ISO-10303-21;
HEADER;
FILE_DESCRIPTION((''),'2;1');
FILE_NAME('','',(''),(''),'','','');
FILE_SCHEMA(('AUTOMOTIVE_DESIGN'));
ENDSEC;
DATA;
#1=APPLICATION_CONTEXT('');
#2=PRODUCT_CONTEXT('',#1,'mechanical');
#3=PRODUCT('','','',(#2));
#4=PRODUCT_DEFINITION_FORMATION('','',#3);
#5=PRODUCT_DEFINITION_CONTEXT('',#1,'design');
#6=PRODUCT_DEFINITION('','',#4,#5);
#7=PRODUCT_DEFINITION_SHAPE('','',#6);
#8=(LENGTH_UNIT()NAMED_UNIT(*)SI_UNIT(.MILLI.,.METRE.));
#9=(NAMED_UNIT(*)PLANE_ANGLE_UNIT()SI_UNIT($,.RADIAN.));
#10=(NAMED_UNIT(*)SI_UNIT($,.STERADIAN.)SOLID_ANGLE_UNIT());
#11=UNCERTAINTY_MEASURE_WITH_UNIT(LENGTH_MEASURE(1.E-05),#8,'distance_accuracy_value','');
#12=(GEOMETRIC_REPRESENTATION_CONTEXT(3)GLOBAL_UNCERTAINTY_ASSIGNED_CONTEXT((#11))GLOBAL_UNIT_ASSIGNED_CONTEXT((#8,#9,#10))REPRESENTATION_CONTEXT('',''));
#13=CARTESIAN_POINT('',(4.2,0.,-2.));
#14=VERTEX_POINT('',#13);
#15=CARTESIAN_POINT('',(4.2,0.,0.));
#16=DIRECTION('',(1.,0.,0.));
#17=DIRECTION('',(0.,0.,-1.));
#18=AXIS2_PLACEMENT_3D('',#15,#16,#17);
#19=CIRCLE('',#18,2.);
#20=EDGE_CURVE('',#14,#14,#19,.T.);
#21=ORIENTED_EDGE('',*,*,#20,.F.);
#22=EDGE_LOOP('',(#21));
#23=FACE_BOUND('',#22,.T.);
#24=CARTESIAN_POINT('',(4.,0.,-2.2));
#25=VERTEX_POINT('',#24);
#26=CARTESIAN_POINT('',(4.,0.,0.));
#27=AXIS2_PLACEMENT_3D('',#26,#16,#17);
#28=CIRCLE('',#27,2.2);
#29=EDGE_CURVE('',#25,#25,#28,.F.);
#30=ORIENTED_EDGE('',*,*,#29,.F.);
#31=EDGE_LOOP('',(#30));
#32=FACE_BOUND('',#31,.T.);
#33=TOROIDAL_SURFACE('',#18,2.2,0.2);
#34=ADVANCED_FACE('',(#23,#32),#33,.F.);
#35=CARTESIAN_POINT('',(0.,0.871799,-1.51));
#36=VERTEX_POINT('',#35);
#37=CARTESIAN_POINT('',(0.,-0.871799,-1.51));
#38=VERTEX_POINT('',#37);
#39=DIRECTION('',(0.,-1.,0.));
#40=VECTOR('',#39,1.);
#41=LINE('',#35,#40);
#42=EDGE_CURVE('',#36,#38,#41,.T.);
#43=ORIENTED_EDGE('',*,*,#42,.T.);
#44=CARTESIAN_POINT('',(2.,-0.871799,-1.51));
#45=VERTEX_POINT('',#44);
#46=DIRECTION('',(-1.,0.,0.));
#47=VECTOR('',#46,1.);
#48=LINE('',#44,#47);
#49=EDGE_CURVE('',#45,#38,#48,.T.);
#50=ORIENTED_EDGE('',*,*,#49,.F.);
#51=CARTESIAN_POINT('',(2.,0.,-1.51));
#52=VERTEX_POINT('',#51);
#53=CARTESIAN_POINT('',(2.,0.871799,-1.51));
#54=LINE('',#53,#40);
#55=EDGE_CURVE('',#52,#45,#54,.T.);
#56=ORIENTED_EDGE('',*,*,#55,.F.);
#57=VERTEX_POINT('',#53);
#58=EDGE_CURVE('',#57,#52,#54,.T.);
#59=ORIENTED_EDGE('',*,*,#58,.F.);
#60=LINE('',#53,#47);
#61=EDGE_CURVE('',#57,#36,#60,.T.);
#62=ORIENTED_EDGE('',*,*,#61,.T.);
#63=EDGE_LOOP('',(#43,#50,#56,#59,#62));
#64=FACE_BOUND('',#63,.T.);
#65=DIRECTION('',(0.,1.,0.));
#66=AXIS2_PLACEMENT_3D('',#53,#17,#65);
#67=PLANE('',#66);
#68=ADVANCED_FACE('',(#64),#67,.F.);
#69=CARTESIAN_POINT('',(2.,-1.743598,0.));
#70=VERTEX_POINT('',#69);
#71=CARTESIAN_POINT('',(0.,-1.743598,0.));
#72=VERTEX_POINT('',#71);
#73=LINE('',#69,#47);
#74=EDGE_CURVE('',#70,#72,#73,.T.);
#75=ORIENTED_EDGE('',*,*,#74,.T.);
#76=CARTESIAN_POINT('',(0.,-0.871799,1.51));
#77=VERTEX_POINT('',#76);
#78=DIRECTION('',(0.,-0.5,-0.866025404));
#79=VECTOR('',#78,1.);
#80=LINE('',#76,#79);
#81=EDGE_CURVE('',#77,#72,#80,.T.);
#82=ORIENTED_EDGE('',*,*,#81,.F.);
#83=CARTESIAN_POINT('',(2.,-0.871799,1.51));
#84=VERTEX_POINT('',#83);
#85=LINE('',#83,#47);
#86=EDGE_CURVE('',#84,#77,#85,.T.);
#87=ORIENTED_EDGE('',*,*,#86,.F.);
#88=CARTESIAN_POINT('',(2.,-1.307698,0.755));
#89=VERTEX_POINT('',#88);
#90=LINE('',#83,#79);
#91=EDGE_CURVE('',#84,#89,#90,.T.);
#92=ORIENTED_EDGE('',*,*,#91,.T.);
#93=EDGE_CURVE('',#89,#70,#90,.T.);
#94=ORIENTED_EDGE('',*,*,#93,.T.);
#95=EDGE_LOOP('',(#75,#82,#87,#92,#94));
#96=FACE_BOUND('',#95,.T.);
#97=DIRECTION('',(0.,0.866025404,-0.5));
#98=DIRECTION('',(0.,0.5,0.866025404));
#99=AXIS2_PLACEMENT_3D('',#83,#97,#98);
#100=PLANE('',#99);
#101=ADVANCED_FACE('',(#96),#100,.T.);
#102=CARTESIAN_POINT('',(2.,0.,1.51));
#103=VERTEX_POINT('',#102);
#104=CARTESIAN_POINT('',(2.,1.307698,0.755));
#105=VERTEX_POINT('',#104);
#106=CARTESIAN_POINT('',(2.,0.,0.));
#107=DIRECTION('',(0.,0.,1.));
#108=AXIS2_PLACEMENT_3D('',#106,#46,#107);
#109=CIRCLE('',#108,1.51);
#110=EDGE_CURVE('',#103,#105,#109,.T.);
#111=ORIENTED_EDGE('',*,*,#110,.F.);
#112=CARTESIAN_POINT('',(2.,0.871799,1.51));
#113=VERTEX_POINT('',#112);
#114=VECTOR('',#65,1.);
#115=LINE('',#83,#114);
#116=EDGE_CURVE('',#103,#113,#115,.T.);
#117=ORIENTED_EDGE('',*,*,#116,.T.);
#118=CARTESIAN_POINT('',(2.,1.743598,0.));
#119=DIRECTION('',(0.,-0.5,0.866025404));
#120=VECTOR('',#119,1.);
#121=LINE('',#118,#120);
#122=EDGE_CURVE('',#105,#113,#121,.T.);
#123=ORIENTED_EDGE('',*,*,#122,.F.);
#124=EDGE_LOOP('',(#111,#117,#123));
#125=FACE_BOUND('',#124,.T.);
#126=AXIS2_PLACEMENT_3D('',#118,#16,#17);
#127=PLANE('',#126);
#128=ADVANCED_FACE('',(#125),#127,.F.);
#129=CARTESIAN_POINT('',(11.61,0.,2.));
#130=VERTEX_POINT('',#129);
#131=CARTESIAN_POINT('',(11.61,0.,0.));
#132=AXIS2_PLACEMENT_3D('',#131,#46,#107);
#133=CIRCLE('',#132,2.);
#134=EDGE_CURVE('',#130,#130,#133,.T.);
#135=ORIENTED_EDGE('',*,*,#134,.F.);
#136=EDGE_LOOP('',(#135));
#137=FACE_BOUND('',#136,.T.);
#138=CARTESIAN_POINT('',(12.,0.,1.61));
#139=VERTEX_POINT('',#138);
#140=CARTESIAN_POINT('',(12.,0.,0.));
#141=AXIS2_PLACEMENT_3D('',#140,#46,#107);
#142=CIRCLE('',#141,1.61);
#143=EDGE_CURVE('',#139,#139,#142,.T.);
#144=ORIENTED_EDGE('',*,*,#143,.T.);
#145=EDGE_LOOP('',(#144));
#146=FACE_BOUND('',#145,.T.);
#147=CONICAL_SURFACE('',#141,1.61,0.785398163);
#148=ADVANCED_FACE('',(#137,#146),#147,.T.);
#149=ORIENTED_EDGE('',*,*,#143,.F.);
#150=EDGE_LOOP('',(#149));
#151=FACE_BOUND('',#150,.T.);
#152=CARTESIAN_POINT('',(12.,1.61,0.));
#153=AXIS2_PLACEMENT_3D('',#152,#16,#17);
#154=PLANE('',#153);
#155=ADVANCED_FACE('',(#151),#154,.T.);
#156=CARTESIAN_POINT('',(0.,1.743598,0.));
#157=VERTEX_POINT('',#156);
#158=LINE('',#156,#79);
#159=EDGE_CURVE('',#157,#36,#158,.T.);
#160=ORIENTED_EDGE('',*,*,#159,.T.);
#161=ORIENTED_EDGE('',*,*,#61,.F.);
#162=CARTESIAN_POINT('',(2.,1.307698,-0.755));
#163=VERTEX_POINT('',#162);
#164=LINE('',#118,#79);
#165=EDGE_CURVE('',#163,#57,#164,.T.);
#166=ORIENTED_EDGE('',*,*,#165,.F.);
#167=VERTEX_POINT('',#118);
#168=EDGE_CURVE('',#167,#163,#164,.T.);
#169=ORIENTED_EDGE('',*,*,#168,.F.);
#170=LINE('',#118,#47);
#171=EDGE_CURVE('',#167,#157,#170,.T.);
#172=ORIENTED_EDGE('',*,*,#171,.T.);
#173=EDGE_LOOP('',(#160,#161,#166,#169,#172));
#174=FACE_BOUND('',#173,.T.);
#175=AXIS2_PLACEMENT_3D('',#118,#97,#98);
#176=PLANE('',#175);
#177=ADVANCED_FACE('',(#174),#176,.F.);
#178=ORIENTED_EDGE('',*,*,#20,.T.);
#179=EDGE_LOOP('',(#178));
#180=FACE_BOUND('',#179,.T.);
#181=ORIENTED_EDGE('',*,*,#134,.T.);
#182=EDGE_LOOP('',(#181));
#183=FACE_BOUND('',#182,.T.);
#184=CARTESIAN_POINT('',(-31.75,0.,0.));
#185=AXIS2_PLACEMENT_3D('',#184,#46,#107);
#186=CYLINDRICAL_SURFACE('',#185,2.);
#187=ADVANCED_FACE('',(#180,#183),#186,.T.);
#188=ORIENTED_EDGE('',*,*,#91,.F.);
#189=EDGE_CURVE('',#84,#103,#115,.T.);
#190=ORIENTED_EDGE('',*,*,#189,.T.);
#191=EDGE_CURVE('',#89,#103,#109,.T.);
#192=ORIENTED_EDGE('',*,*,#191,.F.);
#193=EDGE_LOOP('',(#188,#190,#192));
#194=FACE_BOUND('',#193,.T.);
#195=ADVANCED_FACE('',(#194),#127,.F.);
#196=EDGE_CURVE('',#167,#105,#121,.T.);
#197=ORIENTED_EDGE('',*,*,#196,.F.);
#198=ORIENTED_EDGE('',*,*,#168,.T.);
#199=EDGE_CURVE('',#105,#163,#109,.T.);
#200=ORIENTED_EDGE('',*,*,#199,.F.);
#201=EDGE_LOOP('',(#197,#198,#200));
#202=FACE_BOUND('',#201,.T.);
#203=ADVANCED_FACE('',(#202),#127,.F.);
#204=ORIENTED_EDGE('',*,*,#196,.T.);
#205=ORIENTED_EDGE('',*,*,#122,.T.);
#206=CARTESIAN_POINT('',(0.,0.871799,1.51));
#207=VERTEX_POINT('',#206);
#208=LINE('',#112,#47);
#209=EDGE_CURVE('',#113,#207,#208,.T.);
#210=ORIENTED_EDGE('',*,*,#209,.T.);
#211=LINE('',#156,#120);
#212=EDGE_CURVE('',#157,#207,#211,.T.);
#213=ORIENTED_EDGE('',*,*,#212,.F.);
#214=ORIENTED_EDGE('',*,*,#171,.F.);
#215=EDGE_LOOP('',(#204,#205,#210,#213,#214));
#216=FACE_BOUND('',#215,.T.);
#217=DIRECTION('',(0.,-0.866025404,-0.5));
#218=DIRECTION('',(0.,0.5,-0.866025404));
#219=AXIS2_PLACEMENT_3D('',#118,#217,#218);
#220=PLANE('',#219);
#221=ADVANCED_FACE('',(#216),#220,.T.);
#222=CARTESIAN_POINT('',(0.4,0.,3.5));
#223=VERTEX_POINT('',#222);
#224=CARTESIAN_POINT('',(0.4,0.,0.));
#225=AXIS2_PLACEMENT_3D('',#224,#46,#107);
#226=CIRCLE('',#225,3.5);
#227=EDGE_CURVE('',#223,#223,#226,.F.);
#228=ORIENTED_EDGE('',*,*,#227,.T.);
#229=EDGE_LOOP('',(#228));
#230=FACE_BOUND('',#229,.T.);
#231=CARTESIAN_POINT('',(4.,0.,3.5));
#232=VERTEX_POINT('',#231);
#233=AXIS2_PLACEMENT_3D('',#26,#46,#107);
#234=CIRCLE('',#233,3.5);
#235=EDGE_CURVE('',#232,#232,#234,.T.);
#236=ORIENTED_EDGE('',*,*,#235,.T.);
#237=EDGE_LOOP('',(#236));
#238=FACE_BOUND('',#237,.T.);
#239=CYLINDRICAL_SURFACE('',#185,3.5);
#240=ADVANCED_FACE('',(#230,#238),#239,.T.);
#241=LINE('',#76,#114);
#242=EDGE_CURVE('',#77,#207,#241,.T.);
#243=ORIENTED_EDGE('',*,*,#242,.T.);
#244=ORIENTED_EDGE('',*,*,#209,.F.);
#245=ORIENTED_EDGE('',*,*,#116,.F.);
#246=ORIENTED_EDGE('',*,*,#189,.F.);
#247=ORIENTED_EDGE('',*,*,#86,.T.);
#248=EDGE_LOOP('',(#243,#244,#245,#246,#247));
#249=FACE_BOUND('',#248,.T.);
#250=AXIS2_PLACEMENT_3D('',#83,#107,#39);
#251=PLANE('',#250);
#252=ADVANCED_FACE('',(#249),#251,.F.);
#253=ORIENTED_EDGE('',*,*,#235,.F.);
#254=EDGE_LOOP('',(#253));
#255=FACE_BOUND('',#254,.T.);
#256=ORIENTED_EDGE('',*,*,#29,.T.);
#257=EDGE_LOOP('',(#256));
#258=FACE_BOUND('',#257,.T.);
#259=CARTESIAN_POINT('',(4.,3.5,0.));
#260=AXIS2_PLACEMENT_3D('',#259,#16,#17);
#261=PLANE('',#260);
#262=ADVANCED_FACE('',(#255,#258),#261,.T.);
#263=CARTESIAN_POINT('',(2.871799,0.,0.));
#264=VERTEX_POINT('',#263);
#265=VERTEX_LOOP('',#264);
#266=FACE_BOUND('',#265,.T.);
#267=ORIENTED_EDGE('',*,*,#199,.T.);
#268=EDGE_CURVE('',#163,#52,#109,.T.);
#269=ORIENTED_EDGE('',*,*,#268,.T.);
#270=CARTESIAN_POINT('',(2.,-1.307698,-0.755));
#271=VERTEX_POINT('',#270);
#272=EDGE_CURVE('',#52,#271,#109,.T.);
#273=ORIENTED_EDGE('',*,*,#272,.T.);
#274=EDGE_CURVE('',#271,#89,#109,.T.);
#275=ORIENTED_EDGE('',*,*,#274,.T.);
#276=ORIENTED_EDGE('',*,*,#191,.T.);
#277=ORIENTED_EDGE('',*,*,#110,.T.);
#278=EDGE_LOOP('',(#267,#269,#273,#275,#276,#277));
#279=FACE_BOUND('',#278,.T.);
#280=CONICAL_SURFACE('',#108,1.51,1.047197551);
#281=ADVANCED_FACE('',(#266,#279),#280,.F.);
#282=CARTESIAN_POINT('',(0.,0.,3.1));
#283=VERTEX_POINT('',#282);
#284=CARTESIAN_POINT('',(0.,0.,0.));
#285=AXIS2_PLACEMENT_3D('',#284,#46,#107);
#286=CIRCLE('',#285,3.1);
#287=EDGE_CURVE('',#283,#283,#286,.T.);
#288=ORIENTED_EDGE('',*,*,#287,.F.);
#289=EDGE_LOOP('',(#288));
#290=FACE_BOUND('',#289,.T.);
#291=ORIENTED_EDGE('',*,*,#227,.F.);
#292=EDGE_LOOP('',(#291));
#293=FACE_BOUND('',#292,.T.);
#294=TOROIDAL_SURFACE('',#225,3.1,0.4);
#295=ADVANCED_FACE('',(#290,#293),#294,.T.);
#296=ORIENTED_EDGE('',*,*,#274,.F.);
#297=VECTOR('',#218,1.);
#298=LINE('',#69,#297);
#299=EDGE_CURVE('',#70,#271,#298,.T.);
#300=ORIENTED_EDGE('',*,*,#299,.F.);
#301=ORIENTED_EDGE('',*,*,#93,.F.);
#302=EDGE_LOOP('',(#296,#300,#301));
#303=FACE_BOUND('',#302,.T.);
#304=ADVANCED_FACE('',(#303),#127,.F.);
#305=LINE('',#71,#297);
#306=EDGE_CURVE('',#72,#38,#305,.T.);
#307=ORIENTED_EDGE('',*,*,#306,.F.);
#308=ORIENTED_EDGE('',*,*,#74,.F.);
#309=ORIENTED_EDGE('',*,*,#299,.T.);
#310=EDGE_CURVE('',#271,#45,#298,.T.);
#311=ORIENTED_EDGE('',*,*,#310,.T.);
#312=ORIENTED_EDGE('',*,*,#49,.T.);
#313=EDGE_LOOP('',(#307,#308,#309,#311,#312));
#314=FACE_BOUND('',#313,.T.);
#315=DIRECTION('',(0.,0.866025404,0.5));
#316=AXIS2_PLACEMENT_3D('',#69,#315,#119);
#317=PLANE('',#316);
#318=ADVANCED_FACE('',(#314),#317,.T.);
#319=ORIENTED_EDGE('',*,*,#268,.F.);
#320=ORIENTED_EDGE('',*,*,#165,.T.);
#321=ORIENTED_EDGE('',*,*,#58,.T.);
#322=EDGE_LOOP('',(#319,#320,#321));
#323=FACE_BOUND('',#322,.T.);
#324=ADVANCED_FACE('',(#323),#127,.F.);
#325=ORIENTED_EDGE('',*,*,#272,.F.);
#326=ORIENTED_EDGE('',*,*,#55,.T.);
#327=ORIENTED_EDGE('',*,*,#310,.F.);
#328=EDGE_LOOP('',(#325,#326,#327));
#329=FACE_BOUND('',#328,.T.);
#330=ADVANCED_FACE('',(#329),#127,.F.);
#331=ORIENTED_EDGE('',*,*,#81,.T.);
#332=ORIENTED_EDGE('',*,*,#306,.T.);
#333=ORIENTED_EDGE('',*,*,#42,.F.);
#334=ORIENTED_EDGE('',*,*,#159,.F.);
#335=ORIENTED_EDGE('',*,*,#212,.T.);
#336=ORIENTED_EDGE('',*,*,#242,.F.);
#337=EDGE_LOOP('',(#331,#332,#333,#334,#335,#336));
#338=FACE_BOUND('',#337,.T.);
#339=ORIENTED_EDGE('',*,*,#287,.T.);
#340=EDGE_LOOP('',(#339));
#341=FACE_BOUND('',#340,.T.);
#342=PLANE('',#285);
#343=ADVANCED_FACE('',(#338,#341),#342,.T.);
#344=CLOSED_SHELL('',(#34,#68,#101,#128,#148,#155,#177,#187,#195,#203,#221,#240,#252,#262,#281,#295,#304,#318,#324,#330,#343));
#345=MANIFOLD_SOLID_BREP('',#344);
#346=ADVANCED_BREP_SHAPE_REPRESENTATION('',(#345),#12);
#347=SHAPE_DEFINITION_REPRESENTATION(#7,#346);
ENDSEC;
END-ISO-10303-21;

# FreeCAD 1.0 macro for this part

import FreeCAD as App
import Part
import Sketcher
Q = App.Units.Quantity


def edges_at(feature, points):
    """Names of the edges that pass closest to the given points."""
    edges = feature.Shape.Edges
    near = lambda p: min(range(len(edges)), key=lambda i: edges[i].distToShape(Part.Vertex(*p))[0])
    return sorted({f"Edge{near(p) + 1}" for p in points})

doc = App.newDocument("Part")
body = doc.addObject("PartDesign::Body", "Body")

# Sketch on XY plane
sketch1 = body.newObject("Sketcher::SketchObject", "Sketch")
sketch1.AttachmentSupport = (doc.getObject("XY_Plane"), [""])
sketch1.MapMode = "FlatFace"
sketch1.addGeometry([
    Part.LineSegment(App.Vector(0, 3.5, 0), App.Vector(0, 0, 0)),  # 0
    Part.LineSegment(App.Vector(0, 0, 0), App.Vector(12, 0, 0)),  # 1
    Part.LineSegment(App.Vector(12, 0, 0), App.Vector(12, 1.6, 0)),  # 2
    Part.LineSegment(App.Vector(12, 1.6, 0), App.Vector(11.6, 2, 0)),  # 3
    Part.LineSegment(App.Vector(11.6, 2, 0), App.Vector(4, 2, 0)),  # 4
    Part.LineSegment(App.Vector(4, 2, 0), App.Vector(4, 3.5, 0)),  # 5
    Part.LineSegment(App.Vector(4, 3.5, 0), App.Vector(0, 3.5, 0)),  # 6
], False)
sketch1.addConstraint([
    Sketcher.Constraint("Coincident", 0, 2, 1, 1),
    Sketcher.Constraint("Coincident", 1, 2, 2, 1),
    Sketcher.Constraint("Coincident", 2, 2, 3, 1),
    Sketcher.Constraint("Coincident", 3, 2, 4, 1),
    Sketcher.Constraint("Coincident", 4, 2, 5, 1),
    Sketcher.Constraint("Coincident", 5, 2, 6, 1),
    Sketcher.Constraint("Coincident", 6, 2, 0, 1),
    Sketcher.Constraint("Vertical", 0),
    Sketcher.Constraint("Horizontal", 1),
    Sketcher.Constraint("Vertical", 2),
    Sketcher.Constraint("Horizontal", 4),
    Sketcher.Constraint("Vertical", 5),
    Sketcher.Constraint("Horizontal", 6),
    Sketcher.Constraint("Coincident", 0, 2, -1, 1),
    Sketcher.Constraint("DistanceX", 1, 1, 1, 2, 12.0),
    Sketcher.Constraint("DistanceX", 6, 2, 6, 1, 4.0),
    Sketcher.Constraint("Angle", 3, Q("135 deg")),
    Sketcher.Constraint("DistanceY", 0, 2, 0, 1, 3.5),
    Sketcher.Constraint("DistanceY", 5, 1, 5, 2, 1.5),
    Sketcher.Constraint("DistanceX", 4, 2, 4, 1, 7.61),
])
revolution = body.newObject("PartDesign::Revolution", "Revolution")
revolution.Profile = sketch1
revolution.ReferenceAxis = (sketch1, ["H_Axis"])
revolution.Angle = 360
doc.recompute()

fillet = body.newObject("PartDesign::Fillet", "Fillet")
fillet.Base = (revolution, edges_at(revolution, [(4, 0, -2)]))
fillet.Radius = 0.2
doc.recompute()

fillet2 = body.newObject("PartDesign::Fillet", "Fillet001")
fillet2.Base = (fillet, edges_at(fillet, [(0, 0, -3.5)]))
fillet2.Radius = 0.4

# Sketch on XY plane
sketch2 = body.newObject("Sketcher::SketchObject", "Sketch001")
sketch2.AttachmentSupport = (doc.getObject("XY_Plane"), [""])
sketch2.MapMode = "FlatFace"
sketch2.addGeometry([
    Part.LineSegment(App.Vector(2, 1.5, 0), App.Vector(0, 1.5, 0)),
    Part.LineSegment(App.Vector(0, 1.5, 0), App.Vector(0, 0, 0)),
    Part.LineSegment(App.Vector(0, 0, 0), App.Vector(2.9, 0, 0)),
    Part.LineSegment(App.Vector(2.9, 0, 0), App.Vector(2, 1.5, 0)),
], False)
sketch2.addConstraint([
    Sketcher.Constraint("Coincident", 0, 2, 1, 1),
    Sketcher.Constraint("Coincident", 1, 2, 2, 1),
    Sketcher.Constraint("Coincident", 2, 2, 3, 1),
    Sketcher.Constraint("Coincident", 3, 2, 0, 1),
    Sketcher.Constraint("Horizontal", 0),
    Sketcher.Constraint("Vertical", 1),
    Sketcher.Constraint("Horizontal", 2),
    Sketcher.Constraint("Coincident", 1, 2, -1, 1),
    Sketcher.Constraint("DistanceX", 0, 2, 0, 1, 2.0),
    Sketcher.Constraint("Angle", 3, Q("120 deg")),
    Sketcher.Constraint("DistanceY", 1, 2, 1, 1, 1.51),
])
groove = body.newObject("PartDesign::Groove", "Groove")
groove.Profile = sketch2
groove.ReferenceAxis = (sketch2, ["H_Axis"])
groove.Angle = 360

# Sketch on YZ plane
sketch3 = body.newObject("Sketcher::SketchObject", "Sketch002")
sketch3.AttachmentSupport = (doc.getObject("YZ_Plane"), [""])
sketch3.MapMode = "FlatFace"
sketch3.addGeometry([
    Part.LineSegment(App.Vector(1.7, 0, 0), App.Vector(0.9, -1.5, 0)),  # 0
    Part.LineSegment(App.Vector(0.9, -1.5, 0), App.Vector(-0.9, -1.5, 0)),  # 1
    Part.LineSegment(App.Vector(-0.9, -1.5, 0), App.Vector(-1.7, 0, 0)),  # 2
    Part.LineSegment(App.Vector(-1.7, 0, 0), App.Vector(-0.9, 1.5, 0)),  # 3
    Part.LineSegment(App.Vector(-0.9, 1.5, 0), App.Vector(0.9, 1.5, 0)),  # 4
    Part.LineSegment(App.Vector(0.9, 1.5, 0), App.Vector(1.7, 0, 0)),  # 5
], False)
sketch3.addConstraint([
    Sketcher.Constraint("Coincident", 0, 2, 1, 1),
    Sketcher.Constraint("Coincident", 1, 2, 2, 1),
    Sketcher.Constraint("Coincident", 2, 2, 3, 1),
    Sketcher.Constraint("Coincident", 3, 2, 4, 1),
    Sketcher.Constraint("Coincident", 4, 2, 5, 1),
    Sketcher.Constraint("Coincident", 5, 2, 0, 1),
    Sketcher.Constraint("Horizontal", 1),
    Sketcher.Constraint("Horizontal", 4),
    Sketcher.Constraint("Symmetric", 0, 2, 3, 2, -1, 1),
    Sketcher.Constraint("Symmetric", 2, 2, 5, 2, -1, 1),
    Sketcher.Constraint("PointOnObject", 2, 2, -1),
    Sketcher.Constraint("Parallel", 2, 5),
    Sketcher.Constraint("Vertical", 1, 2, 3, 2),
    Sketcher.Constraint("Angle", 0, Q("-120 deg")),
    Sketcher.Constraint("DistanceY", 0, 2, -1, 1, 1.51),
    Sketcher.Constraint("DistanceX", -1, 1, 0, 2, 0.871799),
])
pocket1 = body.newObject("PartDesign::Pocket", "Pocket")
pocket1.Profile = sketch3
pocket1.Length = 2
pocket1.Reversed = True

doc.recompute()
